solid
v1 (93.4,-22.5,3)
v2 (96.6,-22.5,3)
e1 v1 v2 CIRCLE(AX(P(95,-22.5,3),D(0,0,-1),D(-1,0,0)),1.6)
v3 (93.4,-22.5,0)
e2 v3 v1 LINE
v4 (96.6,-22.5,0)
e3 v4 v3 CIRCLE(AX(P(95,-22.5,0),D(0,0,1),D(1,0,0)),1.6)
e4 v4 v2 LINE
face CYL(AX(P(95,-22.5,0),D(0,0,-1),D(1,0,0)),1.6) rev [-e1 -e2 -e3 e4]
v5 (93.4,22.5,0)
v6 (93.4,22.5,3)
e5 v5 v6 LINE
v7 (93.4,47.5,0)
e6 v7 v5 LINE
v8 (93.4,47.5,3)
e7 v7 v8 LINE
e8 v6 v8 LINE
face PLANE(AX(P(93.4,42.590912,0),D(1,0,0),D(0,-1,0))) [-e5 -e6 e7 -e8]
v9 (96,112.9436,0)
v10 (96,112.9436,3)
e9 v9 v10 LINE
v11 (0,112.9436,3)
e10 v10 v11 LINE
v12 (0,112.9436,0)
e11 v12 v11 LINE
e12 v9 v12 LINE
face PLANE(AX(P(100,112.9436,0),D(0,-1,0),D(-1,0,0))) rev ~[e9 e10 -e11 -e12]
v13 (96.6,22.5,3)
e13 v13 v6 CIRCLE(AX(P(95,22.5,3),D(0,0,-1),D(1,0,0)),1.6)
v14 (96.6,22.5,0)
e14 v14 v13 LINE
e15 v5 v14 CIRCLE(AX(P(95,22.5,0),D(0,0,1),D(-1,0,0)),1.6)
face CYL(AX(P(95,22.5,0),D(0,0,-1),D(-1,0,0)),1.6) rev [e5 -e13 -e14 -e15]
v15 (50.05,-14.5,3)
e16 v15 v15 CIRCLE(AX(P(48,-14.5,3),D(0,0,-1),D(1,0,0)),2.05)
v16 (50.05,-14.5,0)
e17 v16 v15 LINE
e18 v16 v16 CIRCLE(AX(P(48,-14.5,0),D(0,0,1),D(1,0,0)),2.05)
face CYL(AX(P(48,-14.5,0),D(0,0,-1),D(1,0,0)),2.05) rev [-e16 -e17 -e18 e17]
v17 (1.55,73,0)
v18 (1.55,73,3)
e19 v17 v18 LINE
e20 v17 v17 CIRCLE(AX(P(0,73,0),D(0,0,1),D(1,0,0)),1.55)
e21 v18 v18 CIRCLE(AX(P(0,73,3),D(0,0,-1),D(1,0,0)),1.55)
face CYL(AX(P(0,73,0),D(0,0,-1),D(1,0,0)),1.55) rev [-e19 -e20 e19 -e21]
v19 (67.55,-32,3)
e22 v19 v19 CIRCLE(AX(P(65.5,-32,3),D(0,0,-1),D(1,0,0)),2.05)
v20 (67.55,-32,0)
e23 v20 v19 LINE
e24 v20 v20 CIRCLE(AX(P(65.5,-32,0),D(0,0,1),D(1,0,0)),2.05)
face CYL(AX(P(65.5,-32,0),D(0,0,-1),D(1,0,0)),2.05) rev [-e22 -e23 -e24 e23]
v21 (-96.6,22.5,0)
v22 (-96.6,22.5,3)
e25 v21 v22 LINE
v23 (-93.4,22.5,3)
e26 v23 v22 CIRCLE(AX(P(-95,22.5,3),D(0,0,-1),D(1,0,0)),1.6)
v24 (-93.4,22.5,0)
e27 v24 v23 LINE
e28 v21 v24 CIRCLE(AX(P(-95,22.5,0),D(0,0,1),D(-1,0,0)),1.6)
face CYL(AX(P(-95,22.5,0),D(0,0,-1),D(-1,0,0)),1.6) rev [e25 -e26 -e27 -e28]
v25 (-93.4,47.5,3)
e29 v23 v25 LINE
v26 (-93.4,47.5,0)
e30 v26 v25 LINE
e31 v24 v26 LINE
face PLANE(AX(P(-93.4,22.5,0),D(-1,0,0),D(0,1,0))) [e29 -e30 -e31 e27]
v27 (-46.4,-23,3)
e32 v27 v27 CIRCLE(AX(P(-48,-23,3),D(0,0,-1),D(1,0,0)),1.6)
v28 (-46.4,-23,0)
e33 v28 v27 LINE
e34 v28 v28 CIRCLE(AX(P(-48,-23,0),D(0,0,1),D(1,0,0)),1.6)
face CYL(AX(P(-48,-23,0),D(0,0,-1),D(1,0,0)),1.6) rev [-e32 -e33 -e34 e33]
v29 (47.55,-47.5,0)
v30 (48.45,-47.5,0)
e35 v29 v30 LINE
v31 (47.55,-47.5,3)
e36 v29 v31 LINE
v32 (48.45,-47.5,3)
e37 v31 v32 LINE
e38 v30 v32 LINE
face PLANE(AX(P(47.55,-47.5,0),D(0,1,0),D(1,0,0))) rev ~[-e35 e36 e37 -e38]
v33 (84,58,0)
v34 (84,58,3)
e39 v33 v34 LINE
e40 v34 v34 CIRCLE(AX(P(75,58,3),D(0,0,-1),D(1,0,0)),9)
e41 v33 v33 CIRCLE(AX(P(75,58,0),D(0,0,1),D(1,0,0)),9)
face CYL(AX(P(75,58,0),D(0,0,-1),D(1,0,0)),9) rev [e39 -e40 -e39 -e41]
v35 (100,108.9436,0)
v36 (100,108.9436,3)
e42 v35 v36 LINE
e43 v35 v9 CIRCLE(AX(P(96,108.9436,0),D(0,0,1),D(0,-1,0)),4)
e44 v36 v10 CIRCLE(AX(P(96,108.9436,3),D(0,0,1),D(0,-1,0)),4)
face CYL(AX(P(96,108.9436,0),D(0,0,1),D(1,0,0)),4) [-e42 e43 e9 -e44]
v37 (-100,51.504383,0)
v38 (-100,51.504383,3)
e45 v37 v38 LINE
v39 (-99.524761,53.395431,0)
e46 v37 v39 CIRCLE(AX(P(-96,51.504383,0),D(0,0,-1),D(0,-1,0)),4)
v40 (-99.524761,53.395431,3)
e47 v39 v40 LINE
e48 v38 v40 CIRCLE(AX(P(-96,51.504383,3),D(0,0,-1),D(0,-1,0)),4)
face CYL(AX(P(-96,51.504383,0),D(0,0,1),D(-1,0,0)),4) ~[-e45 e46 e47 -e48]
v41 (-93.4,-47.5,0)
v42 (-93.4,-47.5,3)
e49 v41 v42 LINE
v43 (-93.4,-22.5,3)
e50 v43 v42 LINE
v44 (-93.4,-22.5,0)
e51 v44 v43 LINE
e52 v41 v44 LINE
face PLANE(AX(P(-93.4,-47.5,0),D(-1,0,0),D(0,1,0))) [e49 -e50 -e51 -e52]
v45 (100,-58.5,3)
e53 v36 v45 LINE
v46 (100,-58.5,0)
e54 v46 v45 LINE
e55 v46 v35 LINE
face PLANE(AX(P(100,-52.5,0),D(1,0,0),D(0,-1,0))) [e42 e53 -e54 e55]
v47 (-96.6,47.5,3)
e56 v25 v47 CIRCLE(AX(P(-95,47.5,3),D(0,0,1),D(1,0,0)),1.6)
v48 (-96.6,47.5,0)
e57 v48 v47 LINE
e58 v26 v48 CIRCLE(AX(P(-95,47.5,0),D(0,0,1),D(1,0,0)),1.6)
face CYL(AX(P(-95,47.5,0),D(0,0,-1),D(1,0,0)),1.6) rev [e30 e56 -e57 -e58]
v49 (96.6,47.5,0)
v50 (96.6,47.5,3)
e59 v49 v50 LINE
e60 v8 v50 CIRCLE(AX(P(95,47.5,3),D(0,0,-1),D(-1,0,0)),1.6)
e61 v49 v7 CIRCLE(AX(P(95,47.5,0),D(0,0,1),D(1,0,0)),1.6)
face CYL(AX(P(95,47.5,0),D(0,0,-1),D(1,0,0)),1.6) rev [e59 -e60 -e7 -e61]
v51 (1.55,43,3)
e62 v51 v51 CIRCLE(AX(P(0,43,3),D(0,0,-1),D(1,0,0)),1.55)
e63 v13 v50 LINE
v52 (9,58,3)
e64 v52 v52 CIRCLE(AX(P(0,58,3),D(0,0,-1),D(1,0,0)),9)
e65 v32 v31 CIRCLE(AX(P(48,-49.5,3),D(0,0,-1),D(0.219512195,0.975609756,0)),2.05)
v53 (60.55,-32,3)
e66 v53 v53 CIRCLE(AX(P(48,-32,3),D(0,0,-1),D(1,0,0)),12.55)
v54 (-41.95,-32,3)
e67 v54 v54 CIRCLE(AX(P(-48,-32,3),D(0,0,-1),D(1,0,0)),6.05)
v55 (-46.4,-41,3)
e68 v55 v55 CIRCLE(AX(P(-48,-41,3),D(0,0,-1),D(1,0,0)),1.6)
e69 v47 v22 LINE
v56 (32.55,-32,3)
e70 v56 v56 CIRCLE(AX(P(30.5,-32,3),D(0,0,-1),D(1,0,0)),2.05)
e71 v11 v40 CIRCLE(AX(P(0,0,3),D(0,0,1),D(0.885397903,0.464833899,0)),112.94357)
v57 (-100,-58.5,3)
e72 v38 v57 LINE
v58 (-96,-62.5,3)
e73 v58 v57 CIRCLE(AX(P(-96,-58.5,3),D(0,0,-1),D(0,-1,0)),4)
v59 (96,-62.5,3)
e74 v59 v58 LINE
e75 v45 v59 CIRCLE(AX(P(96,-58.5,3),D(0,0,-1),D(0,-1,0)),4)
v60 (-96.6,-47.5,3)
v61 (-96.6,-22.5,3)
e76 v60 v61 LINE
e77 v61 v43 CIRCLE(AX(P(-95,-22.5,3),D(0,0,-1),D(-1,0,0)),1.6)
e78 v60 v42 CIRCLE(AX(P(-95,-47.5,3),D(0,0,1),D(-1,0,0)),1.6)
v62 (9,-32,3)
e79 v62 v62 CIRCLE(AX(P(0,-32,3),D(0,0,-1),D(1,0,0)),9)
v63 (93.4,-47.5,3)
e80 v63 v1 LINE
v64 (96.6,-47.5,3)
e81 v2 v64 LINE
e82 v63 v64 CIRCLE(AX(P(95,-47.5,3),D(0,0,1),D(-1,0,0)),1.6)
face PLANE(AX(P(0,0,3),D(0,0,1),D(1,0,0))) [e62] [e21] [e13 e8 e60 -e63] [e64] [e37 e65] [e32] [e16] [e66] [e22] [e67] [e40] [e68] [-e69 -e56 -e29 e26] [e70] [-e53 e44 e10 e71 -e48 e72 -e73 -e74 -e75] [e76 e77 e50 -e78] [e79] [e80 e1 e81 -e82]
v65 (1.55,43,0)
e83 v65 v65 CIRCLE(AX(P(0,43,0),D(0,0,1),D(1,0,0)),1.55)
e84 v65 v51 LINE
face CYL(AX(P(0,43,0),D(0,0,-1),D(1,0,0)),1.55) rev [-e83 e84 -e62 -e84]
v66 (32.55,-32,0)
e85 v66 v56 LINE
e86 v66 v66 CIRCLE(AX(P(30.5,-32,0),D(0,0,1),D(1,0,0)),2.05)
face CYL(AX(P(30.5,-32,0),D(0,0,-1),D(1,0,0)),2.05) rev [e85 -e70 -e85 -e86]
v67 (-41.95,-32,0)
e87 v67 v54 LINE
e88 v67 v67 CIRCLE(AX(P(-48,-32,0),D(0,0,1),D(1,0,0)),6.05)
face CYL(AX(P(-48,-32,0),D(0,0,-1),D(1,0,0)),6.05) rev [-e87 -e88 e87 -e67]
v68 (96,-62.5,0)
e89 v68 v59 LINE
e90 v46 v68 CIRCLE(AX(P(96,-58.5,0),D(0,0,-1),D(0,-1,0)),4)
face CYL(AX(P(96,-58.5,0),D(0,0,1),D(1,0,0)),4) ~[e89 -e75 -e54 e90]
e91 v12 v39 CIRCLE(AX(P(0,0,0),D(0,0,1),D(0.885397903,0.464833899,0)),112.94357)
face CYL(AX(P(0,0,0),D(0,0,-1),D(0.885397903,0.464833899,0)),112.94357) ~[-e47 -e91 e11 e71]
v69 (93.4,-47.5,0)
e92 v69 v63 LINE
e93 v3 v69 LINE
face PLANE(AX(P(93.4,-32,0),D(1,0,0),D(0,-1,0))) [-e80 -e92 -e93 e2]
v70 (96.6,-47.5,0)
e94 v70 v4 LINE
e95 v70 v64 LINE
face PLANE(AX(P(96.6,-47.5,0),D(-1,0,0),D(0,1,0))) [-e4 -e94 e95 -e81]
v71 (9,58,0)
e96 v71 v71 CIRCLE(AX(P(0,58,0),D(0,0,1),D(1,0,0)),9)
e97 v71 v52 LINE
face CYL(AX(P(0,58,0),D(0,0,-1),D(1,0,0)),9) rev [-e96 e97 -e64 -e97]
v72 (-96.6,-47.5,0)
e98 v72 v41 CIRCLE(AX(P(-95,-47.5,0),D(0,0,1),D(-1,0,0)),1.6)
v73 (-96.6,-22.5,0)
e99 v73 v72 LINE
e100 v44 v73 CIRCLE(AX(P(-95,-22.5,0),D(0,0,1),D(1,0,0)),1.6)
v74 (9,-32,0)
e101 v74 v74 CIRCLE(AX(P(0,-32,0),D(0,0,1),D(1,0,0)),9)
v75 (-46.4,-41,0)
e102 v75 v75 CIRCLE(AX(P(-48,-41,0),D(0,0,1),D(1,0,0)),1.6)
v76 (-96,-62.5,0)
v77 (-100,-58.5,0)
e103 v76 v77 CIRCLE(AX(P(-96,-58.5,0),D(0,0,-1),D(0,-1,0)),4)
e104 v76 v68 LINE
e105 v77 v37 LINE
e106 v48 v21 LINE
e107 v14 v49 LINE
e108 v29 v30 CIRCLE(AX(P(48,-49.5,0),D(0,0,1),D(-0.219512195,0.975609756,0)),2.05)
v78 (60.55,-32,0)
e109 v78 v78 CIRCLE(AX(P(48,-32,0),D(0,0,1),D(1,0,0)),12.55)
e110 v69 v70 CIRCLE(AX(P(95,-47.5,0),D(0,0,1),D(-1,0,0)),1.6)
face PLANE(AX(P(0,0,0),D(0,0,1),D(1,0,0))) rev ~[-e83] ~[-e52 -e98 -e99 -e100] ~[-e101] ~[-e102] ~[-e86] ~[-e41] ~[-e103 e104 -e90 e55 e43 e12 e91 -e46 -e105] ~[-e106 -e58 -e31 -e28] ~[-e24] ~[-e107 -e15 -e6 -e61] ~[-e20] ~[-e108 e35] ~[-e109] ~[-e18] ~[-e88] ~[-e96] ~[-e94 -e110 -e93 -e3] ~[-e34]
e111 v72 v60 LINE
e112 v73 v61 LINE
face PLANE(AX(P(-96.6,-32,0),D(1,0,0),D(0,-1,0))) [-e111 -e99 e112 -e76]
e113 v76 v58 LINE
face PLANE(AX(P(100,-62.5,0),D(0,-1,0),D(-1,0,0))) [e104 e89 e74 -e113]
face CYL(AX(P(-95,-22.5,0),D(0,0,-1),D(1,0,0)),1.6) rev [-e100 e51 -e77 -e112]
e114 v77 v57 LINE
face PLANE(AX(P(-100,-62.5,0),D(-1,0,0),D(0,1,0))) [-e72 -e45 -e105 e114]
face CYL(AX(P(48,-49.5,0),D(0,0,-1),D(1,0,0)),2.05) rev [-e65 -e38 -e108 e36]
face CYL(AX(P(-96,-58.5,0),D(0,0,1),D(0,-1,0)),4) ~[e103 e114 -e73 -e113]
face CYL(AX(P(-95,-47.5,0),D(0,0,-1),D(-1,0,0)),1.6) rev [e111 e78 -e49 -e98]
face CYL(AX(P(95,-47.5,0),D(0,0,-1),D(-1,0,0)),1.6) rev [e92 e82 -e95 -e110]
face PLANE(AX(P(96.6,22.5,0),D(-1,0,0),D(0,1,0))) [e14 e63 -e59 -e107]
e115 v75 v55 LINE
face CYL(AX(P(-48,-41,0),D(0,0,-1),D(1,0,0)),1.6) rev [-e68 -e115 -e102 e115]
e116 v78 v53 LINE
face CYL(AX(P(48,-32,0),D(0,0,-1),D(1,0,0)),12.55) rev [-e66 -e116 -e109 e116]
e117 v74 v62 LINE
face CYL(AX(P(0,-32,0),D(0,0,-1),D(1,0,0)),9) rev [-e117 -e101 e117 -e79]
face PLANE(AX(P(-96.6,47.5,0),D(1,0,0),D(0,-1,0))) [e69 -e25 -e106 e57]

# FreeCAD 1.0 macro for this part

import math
import FreeCAD as App
import Part
import Sketcher
from FreeCAD import Vector
Q = App.Units.Quantity


def edges_at(feature, points):
    """Names of the edges that pass closest to the given points."""
    edges = feature.Shape.Edges
    near = lambda p: min(range(len(edges)), key=lambda i: edges[i].distToShape(Part.Vertex(*p))[0])
    return sorted({f"Edge{near(p) + 1}" for p in points})

doc = App.newDocument("Part")
body = doc.addObject("PartDesign::Body", "Body")

sketch1 = doc.addObject("Sketcher::SketchObject", "Sketch")
body.addObject(sketch1)
sketch1.AttachmentSupport = (doc.XY_Plane, [""])
sketch1.MapMode = "FlatFace"
sketch1.addGeometry([
    Part.LineSegment(Vector(100, -62.5, 0), Vector(100, 112.9436, 0)),
    Part.LineSegment(Vector(100, 112.9436, 0), Vector(0, 112.9436, 0)),
    Part.ArcOfCircle(Part.Circle(Vector(0, 0, 0), Vector(0, 0, 1), 112.94357), math.radians(90), math.radians(152.300527)),
    Part.LineSegment(Vector(-100, 52.5, 0), Vector(-100, -62.5, 0)),
    Part.LineSegment(Vector(-100, -62.5, 0), Vector(100, -62.5, 0)),
    Part.LineSegment(Vector(47.55, -47.5, 0), Vector(48.45, -47.5, 0)),
    Part.ArcOfCircle(Part.Circle(Vector(48, -49.5, 0), Vector(0, 0, 1), 2.05), math.radians(102.680383), math.radians(437.319617)),
    Part.ArcOfCircle(Part.Circle(Vector(95, -47.5, 0), Vector(0, 0, 1), 1.6), math.radians(180), math.radians(360)),
    Part.LineSegment(Vector(93.4, -47.5, 0), Vector(93.4, -22.5, 0)),
    Part.ArcOfCircle(Part.Circle(Vector(95, -22.5, 0), Vector(0, 0, 1), 1.6), math.radians(0), math.radians(180)),
    Part.LineSegment(Vector(96.6, -22.5, 0), Vector(96.6, -47.5, 0)),
    Part.Circle(Vector(65.5, -32, 0), Vector(0, 0, 1), 2.05),
    Part.Circle(Vector(30.5, -32, 0), Vector(0, 0, 1), 2.05),
    Part.LineSegment(Vector(-96.6, -47.5, 0), Vector(-96.6, -22.5, 0)),
    Part.ArcOfCircle(Part.Circle(Vector(-95, -22.5, 0), Vector(0, 0, 1), 1.6), math.radians(0), math.radians(180)),
    Part.LineSegment(Vector(-93.4, -22.5, 0), Vector(-93.4, -47.5, 0)),
    Part.ArcOfCircle(Part.Circle(Vector(-95, -47.5, 0), Vector(0, 0, 1), 1.6), math.radians(180), math.radians(360)),
    Part.Circle(Vector(48, -32, 0), Vector(0, 0, 1), 12.55),
    Part.Circle(Vector(48, -14.5, 0), Vector(0, 0, 1), 2.05),
    Part.ArcOfCircle(Part.Circle(Vector(95, 22.5, 0), Vector(0, 0, 1), 1.6), math.radians(180), math.radians(360)),
    Part.LineSegment(Vector(93.4, 22.5, 0), Vector(93.4, 47.5, 0)),
    Part.ArcOfCircle(Part.Circle(Vector(95, 47.5, 0), Vector(0, 0, 1), 1.6), math.radians(0), math.radians(180)),
    Part.LineSegment(Vector(96.6, 47.5, 0), Vector(96.6, 22.5, 0)),
    Part.Circle(Vector(0, -32, 0), Vector(0, 0, 1), 9),
    Part.Circle(Vector(-48, -41, 0), Vector(0, 0, 1), 1.6),
    Part.Circle(Vector(-48, -23, 0), Vector(0, 0, 1), 1.6),
    Part.Circle(Vector(-48, -32, 0), Vector(0, 0, 1), 6.05),
    Part.ArcOfCircle(Part.Circle(Vector(-95, 47.5, 0), Vector(0, 0, 1), 1.6), math.radians(0), math.radians(180)),
    Part.LineSegment(Vector(-93.4, 47.5, 0), Vector(-93.4, 22.5, 0)),
    Part.ArcOfCircle(Part.Circle(Vector(-95, 22.5, 0), Vector(0, 0, 1), 1.6), math.radians(180), math.radians(360)),
    Part.LineSegment(Vector(-96.6, 22.5, 0), Vector(-96.6, 47.5, 0)),
    Part.Circle(Vector(0, 43, 0), Vector(0, 0, 1), 1.55),
    Part.Circle(Vector(75, 58, 0), Vector(0, 0, 1), 9),
    Part.Circle(Vector(0, 73, 0), Vector(0, 0, 1), 1.55),
    Part.Circle(Vector(0, 58, 0), Vector(0, 0, 1), 9),
], False)
sketch1.addConstraint([
    Sketcher.Constraint("Coincident", 0, 2, 1, 1),
    Sketcher.Constraint("Tangent", 1, 2, 2, 1),
    Sketcher.Constraint("Coincident", 2, 2, 3, 1),
    Sketcher.Constraint("Coincident", 3, 2, 4, 1),
    Sketcher.Constraint("Coincident", 4, 2, 0, 1),
    Sketcher.Constraint("Coincident", 5, 1, 6, 1),
    Sketcher.Constraint("Coincident", 6, 2, 5, 2),
    Sketcher.Constraint("Tangent", 7, 1, 8, 1),
    Sketcher.Constraint("Tangent", 8, 2, 9, 2),
    Sketcher.Constraint("Tangent", 9, 1, 10, 1),
    Sketcher.Constraint("Tangent", 10, 2, 7, 2),
    Sketcher.Constraint("Tangent", 13, 2, 14, 2),
    Sketcher.Constraint("Tangent", 14, 1, 15, 1),
    Sketcher.Constraint("Tangent", 15, 2, 16, 2),
    Sketcher.Constraint("Tangent", 16, 1, 13, 1),
    Sketcher.Constraint("Tangent", 19, 1, 20, 1),
    Sketcher.Constraint("Tangent", 20, 2, 21, 2),
    Sketcher.Constraint("Tangent", 21, 1, 22, 1),
    Sketcher.Constraint("Tangent", 22, 2, 19, 2),
    Sketcher.Constraint("Tangent", 27, 1, 28, 1),
    Sketcher.Constraint("Tangent", 28, 2, 29, 2),
    Sketcher.Constraint("Tangent", 29, 1, 30, 1),
    Sketcher.Constraint("Tangent", 30, 2, 27, 2),
    Sketcher.Constraint("Vertical", 0),
    Sketcher.Constraint("Horizontal", 1),
    Sketcher.Constraint("Vertical", 3),
    Sketcher.Constraint("Horizontal", 4),
    Sketcher.Constraint("Horizontal", 5),
    Sketcher.Constraint("Vertical", 8),
    Sketcher.Constraint("Vertical", 10),
    Sketcher.Constraint("Vertical", 13),
    Sketcher.Constraint("Vertical", 15),
    Sketcher.Constraint("Vertical", 20),
    Sketcher.Constraint("Vertical", 22),
    Sketcher.Constraint("Vertical", 28),
    Sketcher.Constraint("Vertical", 30),
    Sketcher.Constraint("Coincident", 2, 3, -1, 1),
    Sketcher.Constraint("Equal", 6, 11),
    Sketcher.Constraint("Equal", 11, 12),
    Sketcher.Constraint("Equal", 9, 14),
    Sketcher.Constraint("Equal", 12, 18),
    Sketcher.Constraint("Equal", 16, 19),
    Sketcher.Constraint("Equal", 21, 24),
    Sketcher.Constraint("Equal", 24, 25),
    Sketcher.Constraint("Equal", 25, 27),
    Sketcher.Constraint("Equal", 23, 32),
    Sketcher.Constraint("Equal", 31, 33),
    Sketcher.Constraint("Equal", 32, 34),
    Sketcher.Constraint("Symmetric", 14, 3, 19, 3, -1, 1),
    Sketcher.Constraint("Symmetric", 7, 3, 27, 3, -1, 1),
    Sketcher.Constraint("Symmetric", 9, 3, 14, 3, -2),
    Sketcher.Constraint("Symmetric", 17, 3, 26, 3, -2),
    Sketcher.Constraint("PointOnObject", 23, 3, -2),
    Sketcher.Constraint("PointOnObject", 31, 3, -2),
    Sketcher.Constraint("PointOnObject", 33, 3, -2),
    Sketcher.Constraint("PointOnObject", 34, 3, -2),
    Sketcher.Constraint("Horizontal", 11, 3, 12, 3),
    Sketcher.Constraint("Horizontal", 7, 3, 16, 3),
    Sketcher.Constraint("Horizontal", 12, 3, 17, 3),
    Sketcher.Constraint("Horizontal", 17, 3, 23, 3),
    Sketcher.Constraint("Horizontal", 21, 3, 27, 3),
    Sketcher.Constraint("Horizontal", 19, 3, 29, 3),
    Sketcher.Constraint("Horizontal", 32, 3, 34, 3),
    Sketcher.Constraint("Horizontal", 16, 3, 5, 1),
    Sketcher.Constraint("Vertical", 6, 3, 17, 3),
    Sketcher.Constraint("Vertical", 17, 3, 18, 3),
    Sketcher.Constraint("Vertical", 24, 3, 25, 3),
    Sketcher.Constraint("Vertical", 25, 3, 26, 3),
    Sketcher.Constraint("Diameter", 23, Q("18 mm")),
    Sketcher.Constraint("Diameter", 11, Q("4.1 mm")),
    Sketcher.Constraint("Diameter", 17, Q("25.1 mm")),
    Sketcher.Constraint("Diameter", 24, Q("3.2 mm")),
    Sketcher.Constraint("Diameter", 26, Q("12.1 mm")),
    Sketcher.Constraint("Diameter", 31, Q("3.1 mm")),
    Sketcher.Constraint("DistanceX", 4, 1, 4, 2, Q("200 mm")),
    Sketcher.Constraint("DistanceY", 8, 1, 8, 2, Q("25 mm")),
    Sketcher.Constraint("DistanceX", -1, 1, 6, 3, Q("48 mm")),
    Sketcher.Constraint("DistanceX", -1, 1, 32, 3, Q("75 mm")),
    Sketcher.Constraint("DistanceX", 12, 3, 11, 3, Q("35 mm")),
    Sketcher.Constraint("DistanceY", 6, 3, 18, 3, Q("35 mm")),
    Sketcher.Constraint("DistanceY", 24, 3, 25, 3, Q("18 mm")),
    Sketcher.Constraint("DistanceY", 23, 3, 31, 3, Q("75 mm")),
    Sketcher.Constraint("DistanceY", 31, 3, 33, 3, Q("30 mm")),
    Sketcher.Constraint("DistanceX", 32, 3, 0, 2, Q("25 mm")),
    Sketcher.Constraint("DistanceX", 21, 3, 0, 2, Q("5 mm")),
    Sketcher.Constraint("DistanceY", 27, 3, 2, 2, Q("5 mm")),
    Sketcher.Constraint("DistanceY", 14, 3, 2, 2, Q("75 mm")),
    Sketcher.Constraint("DistanceY", 3, 2, -1, 1, Q("62.5 mm")),
    Sketcher.Constraint("DistanceX", 5, 1, 5, 2, Q("0.9 mm")),
    Sketcher.Constraint("DistanceY", 11, 3, -1, 1, Q("32 mm")),
    Sketcher.Constraint("DistanceY", 24, 3, -1, 1, Q("41 mm")),
    Sketcher.Constraint("DistanceY", -1, 1, 32, 3, Q("58 mm")),
    Sketcher.Constraint("DistanceX", -1, 1, 11, 3, Q("65.5 mm")),
])
pad1 = doc.addObject("PartDesign::Pad", "Pad")
body.addObject(pad1)
pad1.Profile = sketch1
pad1.Length = 3
doc.recompute()

fillet = doc.addObject("PartDesign::Fillet", "Fillet")
body.addObject(fillet)
fillet.Base = (pad1, edges_at(pad1, [
    (-100, 52.5, 1.5),
    (100, -62.5, 1.5),
    (-100, -62.5, 1.5),
    (100, 112.944, 1.5),
]))
fillet.Radius = 4

doc.recompute()
